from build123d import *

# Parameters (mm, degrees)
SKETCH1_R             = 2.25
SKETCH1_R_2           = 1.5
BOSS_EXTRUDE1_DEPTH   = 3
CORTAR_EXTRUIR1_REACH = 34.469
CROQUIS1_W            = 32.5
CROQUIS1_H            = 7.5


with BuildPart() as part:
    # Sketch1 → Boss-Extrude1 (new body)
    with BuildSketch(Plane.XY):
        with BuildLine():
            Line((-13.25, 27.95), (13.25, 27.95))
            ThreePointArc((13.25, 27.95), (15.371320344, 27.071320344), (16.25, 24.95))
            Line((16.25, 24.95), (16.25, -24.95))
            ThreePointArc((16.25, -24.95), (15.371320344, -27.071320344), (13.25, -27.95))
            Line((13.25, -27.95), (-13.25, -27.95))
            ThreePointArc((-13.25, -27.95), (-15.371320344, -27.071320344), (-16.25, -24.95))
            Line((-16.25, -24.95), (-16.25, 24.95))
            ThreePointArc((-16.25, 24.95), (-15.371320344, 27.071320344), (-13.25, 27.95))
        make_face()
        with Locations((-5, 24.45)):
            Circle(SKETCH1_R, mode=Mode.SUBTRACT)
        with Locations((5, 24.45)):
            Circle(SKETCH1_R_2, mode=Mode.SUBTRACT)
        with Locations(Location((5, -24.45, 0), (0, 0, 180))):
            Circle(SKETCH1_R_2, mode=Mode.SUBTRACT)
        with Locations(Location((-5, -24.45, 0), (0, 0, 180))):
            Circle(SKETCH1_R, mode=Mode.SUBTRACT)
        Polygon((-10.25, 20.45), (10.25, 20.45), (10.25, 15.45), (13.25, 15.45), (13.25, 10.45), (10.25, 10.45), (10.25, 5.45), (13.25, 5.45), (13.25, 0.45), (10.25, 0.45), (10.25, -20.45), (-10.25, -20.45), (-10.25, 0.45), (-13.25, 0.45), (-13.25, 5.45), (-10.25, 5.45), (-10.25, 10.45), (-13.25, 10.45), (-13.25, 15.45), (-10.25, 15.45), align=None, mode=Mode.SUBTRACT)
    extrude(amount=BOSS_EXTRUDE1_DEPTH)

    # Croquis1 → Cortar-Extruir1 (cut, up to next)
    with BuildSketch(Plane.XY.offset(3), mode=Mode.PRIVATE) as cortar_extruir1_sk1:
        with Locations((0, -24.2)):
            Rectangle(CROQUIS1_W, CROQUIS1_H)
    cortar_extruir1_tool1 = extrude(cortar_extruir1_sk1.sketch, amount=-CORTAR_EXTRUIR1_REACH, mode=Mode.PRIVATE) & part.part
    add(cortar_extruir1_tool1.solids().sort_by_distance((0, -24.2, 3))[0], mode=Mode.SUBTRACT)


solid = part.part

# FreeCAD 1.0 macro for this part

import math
import FreeCAD as App
import Part
import Sketcher
from FreeCAD import Vector

doc = App.newDocument("Part")
body = doc.addObject("PartDesign::Body", "Body")

sketch1 = doc.addObject("Sketcher::SketchObject", "Sketch")
body.addObject(sketch1)
sketch1.AttachmentSupport = (doc.XY_Plane, [""])
sketch1.MapMode = "FlatFace"
sketch1.addGeometry(Part.LineSegment(Vector(13.2, 27.9, 0), Vector(-13.2, 27.9, 0)), False)
sketch1.addGeometry(Part.ArcOfCircle(Part.Circle(Vector(-13.3, 25, 0), Vector(0, 0, 1), 3), math.radians(90), math.radians(180)), False)
sketch1.addGeometry(Part.LineSegment(Vector(-16.2, 24.9, 0), Vector(-16.2, -24.9, 0)), False)
sketch1.addGeometry(Part.ArcOfCircle(Part.Circle(Vector(-13.3, -25, 0), Vector(0, 0, 1), 3), math.radians(180), math.radians(270)), False)
sketch1.addGeometry(Part.LineSegment(Vector(-13.2, -27.9, 0), Vector(13.2, -27.9, 0)), False)
sketch1.addGeometry(Part.ArcOfCircle(Part.Circle(Vector(13.3, -25, 0), Vector(0, 0, 1), 3), math.radians(-90), math.radians(0)), False)
sketch1.addGeometry(Part.LineSegment(Vector(16.2, -24.9, 0), Vector(16.2, 24.9, 0)), False)
sketch1.addGeometry(Part.ArcOfCircle(Part.Circle(Vector(13.3, 25, 0), Vector(0, 0, 1), 3), math.radians(0), math.radians(90)), False)
sketch1.addGeometry(Part.Circle(Vector(5, -24.4, 0), Vector(0, 0, 1), 1.5), False)
sketch1.addGeometry(Part.Circle(Vector(-5, -24.4, 0), Vector(0, 0, 1), 2.2), False)
sketch1.addGeometry(Part.Circle(Vector(5, 24.4, 0), Vector(0, 0, 1), 1.5), False)
sketch1.addGeometry(Part.LineSegment(Vector(-10.2, 20.4, 0), Vector(10.2, 20.4, 0)), False)
sketch1.addGeometry(Part.LineSegment(Vector(10.2, 20.4, 0), Vector(10.2, 15.4, 0)), False)
sketch1.addGeometry(Part.LineSegment(Vector(10.2, 15.4, 0), Vector(13.2, 15.4, 0)), False)
sketch1.addGeometry(Part.LineSegment(Vector(13.2, 15.4, 0), Vector(13.2, 10.4, 0)), False)
sketch1.addGeometry(Part.LineSegment(Vector(13.2, 10.4, 0), Vector(10.2, 10.4, 0)), False)
sketch1.addGeometry(Part.LineSegment(Vector(10.2, 10.4, 0), Vector(10.2, 5.5, 0)), False)
sketch1.addGeometry(Part.LineSegment(Vector(10.2, 5.5, 0), Vector(13.2, 5.5, 0)), False)
sketch1.addGeometry(Part.LineSegment(Vector(13.2, 5.5, 0), Vector(13.2, 0.5, 0)), False)
sketch1.addGeometry(Part.LineSegment(Vector(13.2, 0.5, 0), Vector(10.2, 0.5, 0)), False)
sketch1.addGeometry(Part.LineSegment(Vector(10.2, 0.5, 0), Vector(10.2, -20.4, 0)), False)
sketch1.addGeometry(Part.LineSegment(Vector(10.2, -20.4, 0), Vector(-10.2, -20.4, 0)), False)
sketch1.addGeometry(Part.LineSegment(Vector(-10.2, -20.4, 0), Vector(-10.2, 0.5, 0)), False)
sketch1.addGeometry(Part.LineSegment(Vector(-10.2, 0.5, 0), Vector(-13.2, 0.5, 0)), False)
sketch1.addGeometry(Part.LineSegment(Vector(-13.2, 0.5, 0), Vector(-13.2, 5.5, 0)), False)
sketch1.addGeometry(Part.LineSegment(Vector(-13.2, 5.5, 0), Vector(-10.2, 5.5, 0)), False)
sketch1.addGeometry(Part.LineSegment(Vector(-10.2, 5.5, 0), Vector(-10.2, 10.4, 0)), False)
sketch1.addGeometry(Part.LineSegment(Vector(-10.2, 10.4, 0), Vector(-13.2, 10.4, 0)), False)
sketch1.addGeometry(Part.LineSegment(Vector(-13.2, 10.4, 0), Vector(-13.2, 15.4, 0)), False)
sketch1.addGeometry(Part.LineSegment(Vector(-13.2, 15.4, 0), Vector(-10.2, 15.4, 0)), False)
sketch1.addGeometry(Part.LineSegment(Vector(-10.2, 15.4, 0), Vector(-10.2, 20.4, 0)), False)
sketch1.addGeometry(Part.Circle(Vector(-5, 24.4, 0), Vector(0, 0, 1), 2.2), False)
sketch1.addConstraint(Sketcher.Constraint("Tangent", 0, 2, 1, 1))
sketch1.addConstraint(Sketcher.Constraint("Tangent", 1, 2, 2, 1))
sketch1.addConstraint(Sketcher.Constraint("Tangent", 2, 2, 3, 1))
sketch1.addConstraint(Sketcher.Constraint("Tangent", 3, 2, 4, 1))
sketch1.addConstraint(Sketcher.Constraint("Tangent", 4, 2, 5, 1))
sketch1.addConstraint(Sketcher.Constraint("Tangent", 5, 2, 6, 1))
sketch1.addConstraint(Sketcher.Constraint("Tangent", 6, 2, 7, 1))
sketch1.addConstraint(Sketcher.Constraint("Tangent", 7, 2, 0, 1))
sketch1.addConstraint(Sketcher.Constraint("Coincident", 11, 2, 12, 1))
sketch1.addConstraint(Sketcher.Constraint("Coincident", 12, 2, 13, 1))
sketch1.addConstraint(Sketcher.Constraint("Coincident", 13, 2, 14, 1))
sketch1.addConstraint(Sketcher.Constraint("Coincident", 14, 2, 15, 1))
sketch1.addConstraint(Sketcher.Constraint("Coincident", 15, 2, 16, 1))
sketch1.addConstraint(Sketcher.Constraint("Coincident", 16, 2, 17, 1))
sketch1.addConstraint(Sketcher.Constraint("Coincident", 17, 2, 18, 1))
sketch1.addConstraint(Sketcher.Constraint("Coincident", 18, 2, 19, 1))
sketch1.addConstraint(Sketcher.Constraint("Coincident", 19, 2, 20, 1))
sketch1.addConstraint(Sketcher.Constraint("Coincident", 20, 2, 21, 1))
sketch1.addConstraint(Sketcher.Constraint("Coincident", 21, 2, 22, 1))
sketch1.addConstraint(Sketcher.Constraint("Coincident", 22, 2, 23, 1))
sketch1.addConstraint(Sketcher.Constraint("Coincident", 23, 2, 24, 1))
sketch1.addConstraint(Sketcher.Constraint("Coincident", 24, 2, 25, 1))
sketch1.addConstraint(Sketcher.Constraint("Coincident", 25, 2, 26, 1))
sketch1.addConstraint(Sketcher.Constraint("Coincident", 26, 2, 27, 1))
sketch1.addConstraint(Sketcher.Constraint("Coincident", 27, 2, 28, 1))
sketch1.addConstraint(Sketcher.Constraint("Coincident", 28, 2, 29, 1))
sketch1.addConstraint(Sketcher.Constraint("Coincident", 29, 2, 30, 1))
sketch1.addConstraint(Sketcher.Constraint("Coincident", 30, 2, 11, 1))
sketch1.addConstraint(Sketcher.Constraint("Horizontal", 0))
sketch1.addConstraint(Sketcher.Constraint("Vertical", 2))
sketch1.addConstraint(Sketcher.Constraint("Horizontal", 4))
sketch1.addConstraint(Sketcher.Constraint("Vertical", 6))
sketch1.addConstraint(Sketcher.Constraint("Horizontal", 11))
sketch1.addConstraint(Sketcher.Constraint("Vertical", 12))
sketch1.addConstraint(Sketcher.Constraint("Horizontal", 13))
sketch1.addConstraint(Sketcher.Constraint("Vertical", 14))
sketch1.addConstraint(Sketcher.Constraint("Horizontal", 15))
sketch1.addConstraint(Sketcher.Constraint("Vertical", 16))
sketch1.addConstraint(Sketcher.Constraint("Horizontal", 17))
sketch1.addConstraint(Sketcher.Constraint("Vertical", 18))
sketch1.addConstraint(Sketcher.Constraint("Horizontal", 19))
sketch1.addConstraint(Sketcher.Constraint("Vertical", 20))
sketch1.addConstraint(Sketcher.Constraint("Horizontal", 21))
sketch1.addConstraint(Sketcher.Constraint("Vertical", 22))
sketch1.addConstraint(Sketcher.Constraint("Horizontal", 23))
sketch1.addConstraint(Sketcher.Constraint("Vertical", 24))
sketch1.addConstraint(Sketcher.Constraint("Horizontal", 25))
sketch1.addConstraint(Sketcher.Constraint("Vertical", 26))
sketch1.addConstraint(Sketcher.Constraint("Horizontal", 27))
sketch1.addConstraint(Sketcher.Constraint("Vertical", 28))
sketch1.addConstraint(Sketcher.Constraint("Horizontal", 29))
sketch1.addConstraint(Sketcher.Constraint("Vertical", 30))
sketch1.addConstraint(Sketcher.Constraint("Equal", 1, 3))
sketch1.addConstraint(Sketcher.Constraint("Equal", 3, 5))
sketch1.addConstraint(Sketcher.Constraint("Equal", 5, 7))
sketch1.addConstraint(Sketcher.Constraint("Equal", 8, 10))
sketch1.addConstraint(Sketcher.Constraint("Equal", 9, 31))
sketch1.addConstraint(Sketcher.Constraint("Symmetric", 1, 3, 5, 3, -1, 1))
sketch1.addConstraint(Sketcher.Constraint("Symmetric", 9, 3, 10, 3, -1, 1))
sketch1.addConstraint(Sketcher.Constraint("Symmetric", 8, 3, 31, 3, -1, 1))
sketch1.addConstraint(Sketcher.Constraint("Symmetric", 11, 2, 21, 2, -1, 1))
sketch1.addConstraint(Sketcher.Constraint("Symmetric", 8, 3, 9, 3, -2))
sketch1.addConstraint(Sketcher.Constraint("Symmetric", 19, 2, 22, 2, -2))
sketch1.addConstraint(Sketcher.Constraint("Symmetric", 17, 2, 24, 2, -2))
sketch1.addConstraint(Sketcher.Constraint("Symmetric", 15, 2, 26, 2, -2))
sketch1.addConstraint(Sketcher.Constraint("Symmetric", 13, 2, 28, 2, -2))
sketch1.addConstraint(Sketcher.Constraint("Vertical", 7, 2, 13, 2))
sketch1.addConstraint(Sketcher.Constraint("Vertical", 12, 2, 15, 2))
sketch1.addConstraint(Sketcher.Constraint("Vertical", 14, 2, 17, 2))
sketch1.addConstraint(Sketcher.Constraint("Vertical", 26, 2, 29, 2))
sketch1.addConstraint(Sketcher.Constraint("Equal", 12, 14))
sketch1.addConstraint(Sketcher.Constraint("Equal", 14, 16))
sketch1.addConstraint(Sketcher.Constraint("Equal", 16, 18))
sketch1.addConstraint(Sketcher.Constraint("Diameter", 8, 3.0))
sketch1.addConstraint(Sketcher.Constraint("Radius", 1, 3.0))
sketch1.addConstraint(Sketcher.Constraint("Diameter", 9, 4.5))
sketch1.addConstraint(Sketcher.Constraint("DistanceX", 13, 1, 13, 2, 3.0))
sketch1.addConstraint(Sketcher.Constraint("DistanceY", 12, 2, 12, 1, 5.0))
sketch1.addConstraint(Sketcher.Constraint("DistanceX", 0, 2, 0, 1, 26.5))
sketch1.addConstraint(Sketcher.Constraint("DistanceY", 2, 2, 2, 1, 49.9))
sketch1.addConstraint(Sketcher.Constraint("DistanceY", 20, 2, 20, 1, 20.9))
sketch1.addConstraint(Sketcher.Constraint("DistanceX", -1, 1, 8, 3, 5.0))
sketch1.addConstraint(Sketcher.Constraint("DistanceY", 11, 2, 10, 3, 4.0))
pad1 = doc.addObject("PartDesign::Pad", "Pad")
body.addObject(pad1)
pad1.Profile = sketch1
pad1.Length = 3

sketch2 = doc.addObject("Sketcher::SketchObject", "Sketch001")
body.addObject(sketch2)
sketch2.AttachmentSupport = (doc.XY_Plane, [""])
sketch2.MapMode = "FlatFace"
sketch2.AttachmentOffset = App.Placement(Vector(0, 0, 3), App.Rotation())
sketch2.addGeometry(Part.LineSegment(Vector(-16, -20, 0), Vector(-16, -28, 0)), False)
sketch2.addGeometry(Part.LineSegment(Vector(-16, -28, 0), Vector(16, -28, 0)), False)
sketch2.addGeometry(Part.LineSegment(Vector(16, -28, 0), Vector(16, -20, 0)), False)
sketch2.addGeometry(Part.LineSegment(Vector(16, -20, 0), Vector(-16, -20, 0)), False)
sketch2.addConstraint(Sketcher.Constraint("Coincident", 0, 2, 1, 1))
sketch2.addConstraint(Sketcher.Constraint("Coincident", 1, 2, 2, 1))
sketch2.addConstraint(Sketcher.Constraint("Coincident", 2, 2, 3, 1))
sketch2.addConstraint(Sketcher.Constraint("Coincident", 3, 2, 0, 1))
sketch2.addConstraint(Sketcher.Constraint("Vertical", 0))
sketch2.addConstraint(Sketcher.Constraint("Horizontal", 1))
sketch2.addConstraint(Sketcher.Constraint("Vertical", 2))
sketch2.addConstraint(Sketcher.Constraint("Horizontal", 3))
sketch2.addConstraint(Sketcher.Constraint("DistanceX", 1, 1, 1, 2, 32.5))
sketch2.addConstraint(Sketcher.Constraint("DistanceY", 0, 2, 0, 1, 7.5))
sketch2.addConstraint(Sketcher.Constraint("DistanceX", 0, 2, -1, 1, 16.25))
sketch2.addConstraint(Sketcher.Constraint("DistanceY", 0, 2, -1, 1, 27.95))
pocket1 = doc.addObject("PartDesign::Pocket", "Pocket")
body.addObject(pocket1)
pocket1.Profile = sketch2
pocket1.Type = "UpToFirst"

doc.recompute()
